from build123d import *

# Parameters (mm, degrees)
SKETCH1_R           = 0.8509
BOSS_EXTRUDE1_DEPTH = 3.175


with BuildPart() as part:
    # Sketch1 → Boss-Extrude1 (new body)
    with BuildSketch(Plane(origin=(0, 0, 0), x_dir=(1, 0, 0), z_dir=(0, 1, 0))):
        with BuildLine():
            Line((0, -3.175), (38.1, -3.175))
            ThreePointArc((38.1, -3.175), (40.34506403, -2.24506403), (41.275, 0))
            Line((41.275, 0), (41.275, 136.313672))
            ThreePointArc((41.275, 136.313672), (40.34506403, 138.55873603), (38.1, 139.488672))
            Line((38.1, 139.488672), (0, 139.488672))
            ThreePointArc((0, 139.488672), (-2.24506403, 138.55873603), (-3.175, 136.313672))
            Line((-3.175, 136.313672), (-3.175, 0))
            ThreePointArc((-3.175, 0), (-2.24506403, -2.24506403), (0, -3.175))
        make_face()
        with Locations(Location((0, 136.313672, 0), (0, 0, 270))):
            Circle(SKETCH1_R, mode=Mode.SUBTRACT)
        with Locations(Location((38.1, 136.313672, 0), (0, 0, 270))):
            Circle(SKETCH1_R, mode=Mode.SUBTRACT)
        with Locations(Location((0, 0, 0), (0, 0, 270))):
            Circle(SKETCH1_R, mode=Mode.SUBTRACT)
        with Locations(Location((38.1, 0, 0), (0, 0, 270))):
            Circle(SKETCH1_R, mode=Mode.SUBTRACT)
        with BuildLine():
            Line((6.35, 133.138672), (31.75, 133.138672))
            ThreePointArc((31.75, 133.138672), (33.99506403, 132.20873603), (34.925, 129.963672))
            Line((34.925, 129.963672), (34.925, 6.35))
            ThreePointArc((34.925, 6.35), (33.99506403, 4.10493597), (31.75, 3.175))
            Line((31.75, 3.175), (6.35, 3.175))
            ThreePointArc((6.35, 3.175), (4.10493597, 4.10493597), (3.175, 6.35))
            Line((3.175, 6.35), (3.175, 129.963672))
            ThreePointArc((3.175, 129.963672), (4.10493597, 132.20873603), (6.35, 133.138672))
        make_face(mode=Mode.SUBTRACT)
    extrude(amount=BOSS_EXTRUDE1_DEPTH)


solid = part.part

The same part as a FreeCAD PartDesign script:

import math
import FreeCAD as App
import Part
import Sketcher
from FreeCAD import Vector
Q = App.Units.Quantity

doc = App.newDocument("Part")
body = doc.addObject("PartDesign::Body", "Body")

# Sketch on XZ plane
sketch1 = body.newObject("Sketcher::SketchObject", "Sketch")
sketch1.AttachmentSupport = (doc.getObject("XZ_Plane"), [""])
sketch1.MapMode = "FlatFace"
sketch1.addGeometry(Part.LineSegment(Vector(0, 3.175, 0), Vector(38.1, 3.175, 0)), False)
sketch1.addGeometry(Part.ArcOfCircle(Part.Circle(Vector(38.1, 0, 0), Vector(0, 0, 1), 3.175), math.radians(0), math.radians(90)), False)
sketch1.addGeometry(Part.LineSegment(Vector(41.275, 0, 0), Vector(41.275, -136.313672, 0)), False)
sketch1.addGeometry(Part.ArcOfCircle(Part.Circle(Vector(38.1, -136.313672, 0), Vector(0, 0, 1), 3.175), math.radians(-90), math.radians(0)), False)
sketch1.addGeometry(Part.LineSegment(Vector(38.1, -139.488672, 0), Vector(0, -139.488672, 0)), False)
sketch1.addGeometry(Part.ArcOfCircle(Part.Circle(Vector(0, -136.313672, 0), Vector(0, 0, 1), 3.175), math.radians(-180), math.radians(-90)), False)
sketch1.addGeometry(Part.LineSegment(Vector(-3.175, -136.313672, 0), Vector(-3.175, 0, 0)), False)
sketch1.addGeometry(Part.ArcOfCircle(Part.Circle(Vector(0, 0, 0), Vector(0, 0, 1), 3.175), math.radians(90), math.radians(180)), False)
sketch1.addGeometry(Part.Circle(Vector(0, 0, 0), Vector(0, 0, 1), 0.8509), False)
sketch1.addGeometry(Part.Circle(Vector(38.1, 0, 0), Vector(0, 0, 1), 0.8509), False)
sketch1.addGeometry(Part.ArcOfCircle(Part.Circle(Vector(6.35, -129.963672, 0), Vector(0, 0, 1), 3.175), math.radians(-180), math.radians(-90)), False)
sketch1.addGeometry(Part.LineSegment(Vector(6.35, -133.138672, 0), Vector(31.75, -133.138672, 0)), False)
sketch1.addGeometry(Part.ArcOfCircle(Part.Circle(Vector(31.75, -129.963672, 0), Vector(0, 0, 1), 3.175), math.radians(-90), math.radians(0)), False)
sketch1.addGeometry(Part.LineSegment(Vector(34.925, -129.963672, 0), Vector(34.925, -6.35, 0)), False)
sketch1.addGeometry(Part.ArcOfCircle(Part.Circle(Vector(31.75, -6.35, 0), Vector(0, 0, 1), 3.175), math.radians(0), math.radians(90)), False)
sketch1.addGeometry(Part.LineSegment(Vector(31.75, -3.175, 0), Vector(6.35, -3.175, 0)), False)
sketch1.addGeometry(Part.ArcOfCircle(Part.Circle(Vector(6.35, -6.35, 0), Vector(0, 0, 1), 3.175), math.radians(90), math.radians(180)), False)
sketch1.addGeometry(Part.LineSegment(Vector(3.175, -6.35, 0), Vector(3.175, -129.963672, 0)), False)
sketch1.addGeometry(Part.Circle(Vector(0, -136.313672, 0), Vector(0, 0, 1), 0.8509), False)
sketch1.addGeometry(Part.Circle(Vector(38.1, -136.313672, 0), Vector(0, 0, 1), 0.8509), False)
sketch1.addConstraint(Sketcher.Constraint("Tangent", 0, 2, 1, 2))
sketch1.addConstraint(Sketcher.Constraint("Tangent", 1, 1, 2, 1))
sketch1.addConstraint(Sketcher.Constraint("Tangent", 2, 2, 3, 2))
sketch1.addConstraint(Sketcher.Constraint("Tangent", 3, 1, 4, 1))
sketch1.addConstraint(Sketcher.Constraint("Tangent", 4, 2, 5, 2))
sketch1.addConstraint(Sketcher.Constraint("Tangent", 5, 1, 6, 1))
sketch1.addConstraint(Sketcher.Constraint("Tangent", 6, 2, 7, 2))
sketch1.addConstraint(Sketcher.Constraint("Tangent", 7, 1, 0, 1))
sketch1.addConstraint(Sketcher.Constraint("Tangent", 10, 2, 11, 1))
sketch1.addConstraint(Sketcher.Constraint("Tangent", 11, 2, 12, 1))
sketch1.addConstraint(Sketcher.Constraint("Tangent", 12, 2, 13, 1))
sketch1.addConstraint(Sketcher.Constraint("Tangent", 13, 2, 14, 1))
sketch1.addConstraint(Sketcher.Constraint("Tangent", 14, 2, 15, 1))
sketch1.addConstraint(Sketcher.Constraint("Tangent", 15, 2, 16, 1))
sketch1.addConstraint(Sketcher.Constraint("Tangent", 16, 2, 17, 1))
sketch1.addConstraint(Sketcher.Constraint("Tangent", 17, 2, 10, 1))
sketch1.addConstraint(Sketcher.Constraint("Horizontal", 0))
sketch1.addConstraint(Sketcher.Constraint("Vertical", 2))
sketch1.addConstraint(Sketcher.Constraint("Horizontal", 4))
sketch1.addConstraint(Sketcher.Constraint("Vertical", 6))
sketch1.addConstraint(Sketcher.Constraint("Horizontal", 11))
sketch1.addConstraint(Sketcher.Constraint("Vertical", 13))
sketch1.addConstraint(Sketcher.Constraint("Horizontal", 15))
sketch1.addConstraint(Sketcher.Constraint("Vertical", 17))
sketch1.addConstraint(Sketcher.Constraint("Coincident", 7, 3, -1, 1))
sketch1.addConstraint(Sketcher.Constraint("Coincident", 8, 3, -1, 1))
sketch1.addConstraint(Sketcher.Constraint("Coincident", 9, 3, 1, 3))
sketch1.addConstraint(Sketcher.Constraint("Coincident", 18, 3, 5, 3))
sketch1.addConstraint(Sketcher.Constraint("Coincident", 19, 3, 3, 3))
sketch1.addConstraint(Sketcher.Constraint("Equal", 1, 3))
sketch1.addConstraint(Sketcher.Constraint("Equal", 3, 5))
sketch1.addConstraint(Sketcher.Constraint("Equal", 5, 7))
sketch1.addConstraint(Sketcher.Constraint("Equal", 8, 9))
sketch1.addConstraint(Sketcher.Constraint("Equal", 7, 10))
sketch1.addConstraint(Sketcher.Constraint("Equal", 10, 12))
sketch1.addConstraint(Sketcher.Constraint("Equal", 12, 14))
sketch1.addConstraint(Sketcher.Constraint("Equal", 14, 16))
sketch1.addConstraint(Sketcher.Constraint("Equal", 9, 18))
sketch1.addConstraint(Sketcher.Constraint("Equal", 18, 19))
sketch1.addConstraint(Sketcher.Constraint("DistanceX", 11, 1, 11, 2, Q("1 in")))
sketch1.addConstraint(Sketcher.Constraint("Diameter", 8, Q("0.067 in")))
sketch1.addConstraint(Sketcher.Constraint("DistanceX", 0, 1, 0, 2, Q("1.5 in")))
sketch1.addConstraint(Sketcher.Constraint("Radius", 1, Q("0.125 in")))
sketch1.addConstraint(Sketcher.Constraint("DistanceX", -1, 1, 10, 3, Q("0.25 in")))
sketch1.addConstraint(Sketcher.Constraint("DistanceY", 14, 3, -1, 1, Q("0.25 in")))
sketch1.addConstraint(Sketcher.Constraint("DistanceY", 5, 3, 10, 3, Q("0.25 in")))
sketch1.addConstraint(Sketcher.Constraint("DistanceY", 2, 2, 2, 1, 136.313672))
pad1 = body.newObject("PartDesign::Pad", "Pad")
pad1.Profile = sketch1
pad1.Length = Q("0.125 in")
pad1.Reversed = True

doc.recompute()
